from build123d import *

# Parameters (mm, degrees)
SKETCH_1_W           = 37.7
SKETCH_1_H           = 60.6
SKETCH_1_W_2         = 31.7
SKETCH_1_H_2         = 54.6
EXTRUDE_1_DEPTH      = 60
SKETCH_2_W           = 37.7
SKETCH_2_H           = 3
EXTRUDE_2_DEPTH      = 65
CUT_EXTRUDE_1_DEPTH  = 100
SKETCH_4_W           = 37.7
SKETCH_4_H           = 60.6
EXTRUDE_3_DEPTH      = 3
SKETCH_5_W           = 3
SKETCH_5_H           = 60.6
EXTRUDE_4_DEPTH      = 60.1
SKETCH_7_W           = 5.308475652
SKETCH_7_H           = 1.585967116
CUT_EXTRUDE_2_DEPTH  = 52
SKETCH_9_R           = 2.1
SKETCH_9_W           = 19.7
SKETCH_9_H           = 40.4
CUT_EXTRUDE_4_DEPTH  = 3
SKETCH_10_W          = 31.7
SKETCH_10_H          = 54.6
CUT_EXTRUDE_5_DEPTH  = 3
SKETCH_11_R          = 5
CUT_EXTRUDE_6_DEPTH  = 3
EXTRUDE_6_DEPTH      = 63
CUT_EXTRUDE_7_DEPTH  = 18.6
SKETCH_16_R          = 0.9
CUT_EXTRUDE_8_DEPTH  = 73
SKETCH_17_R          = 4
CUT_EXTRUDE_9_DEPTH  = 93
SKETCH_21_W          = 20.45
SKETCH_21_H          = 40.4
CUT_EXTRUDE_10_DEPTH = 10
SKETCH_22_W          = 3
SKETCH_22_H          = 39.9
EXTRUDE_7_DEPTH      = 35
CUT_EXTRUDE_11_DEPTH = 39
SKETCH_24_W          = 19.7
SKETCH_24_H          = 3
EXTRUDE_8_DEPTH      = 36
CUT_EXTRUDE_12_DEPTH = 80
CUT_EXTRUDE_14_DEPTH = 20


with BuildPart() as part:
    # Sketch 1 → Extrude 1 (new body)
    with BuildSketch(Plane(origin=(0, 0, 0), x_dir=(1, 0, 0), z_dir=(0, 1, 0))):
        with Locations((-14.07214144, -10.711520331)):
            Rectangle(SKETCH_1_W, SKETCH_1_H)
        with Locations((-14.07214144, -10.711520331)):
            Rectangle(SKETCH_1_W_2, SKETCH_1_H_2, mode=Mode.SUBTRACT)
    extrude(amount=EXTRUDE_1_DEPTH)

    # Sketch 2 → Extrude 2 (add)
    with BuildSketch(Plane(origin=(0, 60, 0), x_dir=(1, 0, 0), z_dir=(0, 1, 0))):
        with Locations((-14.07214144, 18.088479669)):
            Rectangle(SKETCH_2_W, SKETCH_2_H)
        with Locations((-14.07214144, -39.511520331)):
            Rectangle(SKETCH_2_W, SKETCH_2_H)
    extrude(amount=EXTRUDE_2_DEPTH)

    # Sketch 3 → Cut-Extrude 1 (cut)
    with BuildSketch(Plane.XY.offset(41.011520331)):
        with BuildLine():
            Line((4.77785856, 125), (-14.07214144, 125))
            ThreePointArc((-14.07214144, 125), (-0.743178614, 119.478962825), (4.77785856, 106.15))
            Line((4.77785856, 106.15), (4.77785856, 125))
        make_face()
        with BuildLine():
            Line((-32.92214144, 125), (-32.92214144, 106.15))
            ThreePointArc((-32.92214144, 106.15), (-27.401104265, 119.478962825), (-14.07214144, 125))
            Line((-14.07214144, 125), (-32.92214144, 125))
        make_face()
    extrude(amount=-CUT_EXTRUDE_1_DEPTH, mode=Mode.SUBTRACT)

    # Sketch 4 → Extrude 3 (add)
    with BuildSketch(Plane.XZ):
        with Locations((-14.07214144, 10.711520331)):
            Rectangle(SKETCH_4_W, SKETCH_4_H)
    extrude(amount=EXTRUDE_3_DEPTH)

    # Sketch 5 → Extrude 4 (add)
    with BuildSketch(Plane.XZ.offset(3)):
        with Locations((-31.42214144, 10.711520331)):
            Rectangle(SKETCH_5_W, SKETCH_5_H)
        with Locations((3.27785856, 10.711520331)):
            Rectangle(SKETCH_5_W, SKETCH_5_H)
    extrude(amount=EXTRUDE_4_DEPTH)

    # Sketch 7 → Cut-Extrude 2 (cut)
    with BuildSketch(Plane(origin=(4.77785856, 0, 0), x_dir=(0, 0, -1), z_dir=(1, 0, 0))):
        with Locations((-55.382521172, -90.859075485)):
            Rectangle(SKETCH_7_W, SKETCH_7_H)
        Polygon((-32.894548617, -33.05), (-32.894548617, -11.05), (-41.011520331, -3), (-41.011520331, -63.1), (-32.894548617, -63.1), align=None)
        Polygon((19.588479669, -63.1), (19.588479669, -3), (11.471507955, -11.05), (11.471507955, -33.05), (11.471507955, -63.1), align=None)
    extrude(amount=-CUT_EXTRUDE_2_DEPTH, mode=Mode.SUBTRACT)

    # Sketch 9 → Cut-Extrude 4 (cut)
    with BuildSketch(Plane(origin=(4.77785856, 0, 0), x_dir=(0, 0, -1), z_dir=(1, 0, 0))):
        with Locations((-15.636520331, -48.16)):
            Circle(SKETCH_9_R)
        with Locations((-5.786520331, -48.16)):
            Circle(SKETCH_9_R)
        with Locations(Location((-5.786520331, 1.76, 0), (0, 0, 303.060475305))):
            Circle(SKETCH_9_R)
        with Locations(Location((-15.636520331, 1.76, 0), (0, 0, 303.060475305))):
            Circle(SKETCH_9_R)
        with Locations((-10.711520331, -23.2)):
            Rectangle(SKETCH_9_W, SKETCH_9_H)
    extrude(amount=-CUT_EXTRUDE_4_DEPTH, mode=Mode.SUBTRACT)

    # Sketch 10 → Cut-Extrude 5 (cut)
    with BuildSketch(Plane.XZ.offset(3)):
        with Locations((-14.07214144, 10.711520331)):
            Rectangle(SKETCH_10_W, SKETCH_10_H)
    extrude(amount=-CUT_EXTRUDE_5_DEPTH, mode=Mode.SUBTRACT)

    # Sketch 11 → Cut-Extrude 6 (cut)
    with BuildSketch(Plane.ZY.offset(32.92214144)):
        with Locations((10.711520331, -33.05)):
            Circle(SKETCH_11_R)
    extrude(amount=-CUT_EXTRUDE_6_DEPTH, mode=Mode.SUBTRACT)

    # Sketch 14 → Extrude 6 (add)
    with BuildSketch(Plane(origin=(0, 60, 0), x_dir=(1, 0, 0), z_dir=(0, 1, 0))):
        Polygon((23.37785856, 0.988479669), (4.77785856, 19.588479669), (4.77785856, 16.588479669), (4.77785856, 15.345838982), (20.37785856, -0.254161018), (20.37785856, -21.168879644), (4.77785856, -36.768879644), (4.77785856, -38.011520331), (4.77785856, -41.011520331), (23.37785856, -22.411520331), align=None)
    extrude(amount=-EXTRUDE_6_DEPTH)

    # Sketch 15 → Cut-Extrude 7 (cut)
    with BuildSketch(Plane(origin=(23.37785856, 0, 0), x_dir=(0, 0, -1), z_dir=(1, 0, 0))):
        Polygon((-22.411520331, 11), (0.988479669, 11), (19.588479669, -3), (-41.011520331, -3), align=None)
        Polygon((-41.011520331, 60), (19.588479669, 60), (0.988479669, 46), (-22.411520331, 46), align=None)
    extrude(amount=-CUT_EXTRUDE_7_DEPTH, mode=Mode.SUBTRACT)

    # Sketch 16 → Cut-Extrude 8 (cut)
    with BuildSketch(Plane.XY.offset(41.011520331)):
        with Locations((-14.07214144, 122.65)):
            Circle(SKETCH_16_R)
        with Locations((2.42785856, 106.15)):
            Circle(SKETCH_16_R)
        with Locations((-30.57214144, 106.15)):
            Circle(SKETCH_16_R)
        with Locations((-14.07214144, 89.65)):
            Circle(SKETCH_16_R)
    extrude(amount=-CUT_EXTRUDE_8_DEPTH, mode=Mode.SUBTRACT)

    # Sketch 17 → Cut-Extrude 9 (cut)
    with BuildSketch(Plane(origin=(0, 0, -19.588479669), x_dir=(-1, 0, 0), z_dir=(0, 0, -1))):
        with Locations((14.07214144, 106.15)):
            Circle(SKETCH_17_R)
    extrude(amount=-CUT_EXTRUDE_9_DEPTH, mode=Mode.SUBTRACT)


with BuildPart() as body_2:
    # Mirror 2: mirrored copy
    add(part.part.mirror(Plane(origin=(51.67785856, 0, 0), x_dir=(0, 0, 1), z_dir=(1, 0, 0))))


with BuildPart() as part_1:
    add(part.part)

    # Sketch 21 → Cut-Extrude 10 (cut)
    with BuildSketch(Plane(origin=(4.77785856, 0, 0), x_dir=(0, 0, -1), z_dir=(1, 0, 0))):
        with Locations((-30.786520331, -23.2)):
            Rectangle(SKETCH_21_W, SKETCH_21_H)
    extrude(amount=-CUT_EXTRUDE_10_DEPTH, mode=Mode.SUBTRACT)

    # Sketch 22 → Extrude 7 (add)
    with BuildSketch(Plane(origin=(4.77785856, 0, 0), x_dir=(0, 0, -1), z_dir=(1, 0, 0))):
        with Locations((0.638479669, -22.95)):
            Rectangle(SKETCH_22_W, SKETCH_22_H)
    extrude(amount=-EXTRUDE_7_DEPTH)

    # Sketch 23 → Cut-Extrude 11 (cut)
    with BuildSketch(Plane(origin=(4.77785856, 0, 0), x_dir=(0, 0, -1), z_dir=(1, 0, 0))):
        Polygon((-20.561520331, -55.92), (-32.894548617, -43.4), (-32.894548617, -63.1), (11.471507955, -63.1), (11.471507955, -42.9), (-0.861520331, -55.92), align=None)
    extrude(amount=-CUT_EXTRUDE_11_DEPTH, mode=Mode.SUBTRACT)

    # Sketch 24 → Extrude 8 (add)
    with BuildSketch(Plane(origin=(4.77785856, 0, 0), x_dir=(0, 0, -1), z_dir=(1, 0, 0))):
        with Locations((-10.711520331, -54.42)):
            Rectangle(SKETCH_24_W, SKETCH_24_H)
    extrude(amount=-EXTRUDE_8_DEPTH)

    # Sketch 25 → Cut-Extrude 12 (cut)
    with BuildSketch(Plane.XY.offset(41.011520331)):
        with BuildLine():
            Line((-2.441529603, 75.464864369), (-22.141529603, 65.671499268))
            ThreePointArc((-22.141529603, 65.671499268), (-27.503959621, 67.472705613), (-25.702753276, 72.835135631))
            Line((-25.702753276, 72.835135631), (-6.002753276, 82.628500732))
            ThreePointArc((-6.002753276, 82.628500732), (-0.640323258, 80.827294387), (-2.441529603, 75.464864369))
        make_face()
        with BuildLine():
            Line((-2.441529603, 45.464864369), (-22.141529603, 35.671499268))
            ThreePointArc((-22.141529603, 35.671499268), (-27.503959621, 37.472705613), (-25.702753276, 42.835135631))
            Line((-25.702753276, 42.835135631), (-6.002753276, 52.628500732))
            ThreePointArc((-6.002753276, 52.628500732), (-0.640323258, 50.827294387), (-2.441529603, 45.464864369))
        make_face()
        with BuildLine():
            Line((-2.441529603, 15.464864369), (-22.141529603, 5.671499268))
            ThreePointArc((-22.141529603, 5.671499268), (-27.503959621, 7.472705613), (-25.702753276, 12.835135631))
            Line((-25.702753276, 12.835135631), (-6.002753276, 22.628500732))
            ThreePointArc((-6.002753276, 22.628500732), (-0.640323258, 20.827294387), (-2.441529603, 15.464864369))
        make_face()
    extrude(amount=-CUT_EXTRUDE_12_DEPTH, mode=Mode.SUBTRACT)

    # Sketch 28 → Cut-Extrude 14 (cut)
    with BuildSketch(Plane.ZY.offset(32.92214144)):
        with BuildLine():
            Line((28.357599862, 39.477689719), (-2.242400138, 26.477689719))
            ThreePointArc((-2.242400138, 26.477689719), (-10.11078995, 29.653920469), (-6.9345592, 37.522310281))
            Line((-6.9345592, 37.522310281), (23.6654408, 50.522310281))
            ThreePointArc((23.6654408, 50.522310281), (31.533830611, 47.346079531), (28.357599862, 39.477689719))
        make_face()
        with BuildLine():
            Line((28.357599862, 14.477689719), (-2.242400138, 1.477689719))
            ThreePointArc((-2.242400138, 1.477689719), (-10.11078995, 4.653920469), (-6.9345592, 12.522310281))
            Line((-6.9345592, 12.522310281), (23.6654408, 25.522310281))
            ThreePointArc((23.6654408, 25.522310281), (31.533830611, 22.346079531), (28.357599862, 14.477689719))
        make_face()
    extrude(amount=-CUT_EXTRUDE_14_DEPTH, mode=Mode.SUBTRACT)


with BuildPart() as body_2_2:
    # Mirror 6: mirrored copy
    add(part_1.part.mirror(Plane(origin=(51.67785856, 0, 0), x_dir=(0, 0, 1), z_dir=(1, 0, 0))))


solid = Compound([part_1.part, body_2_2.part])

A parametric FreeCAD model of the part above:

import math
import FreeCAD as App
import Part
import Sketcher
from FreeCAD import Vector


def add_polygon(sketch, points):
    """Adds a closed chain of lines whose ends are joined by coincident constraints."""
    first, n = sketch.GeometryCount, len(points)
    for a, b in zip(points, points[1:] + points[:1]):
        sketch.addGeometry(Part.LineSegment(App.Vector(*a, 0), App.Vector(*b, 0)), False)
    for i in range(n):
        sketch.addConstraint(Sketcher.Constraint("Coincident", first + i, 2, first + (i + 1) % n, 1))

doc = App.newDocument("Part")
body = doc.addObject("PartDesign::Body", "Body")

# Sketch on XZ plane
sketch1 = doc.addObject("Sketcher::SketchObject", "Sketch")
body.addObject(sketch1)
sketch1.AttachmentSupport = (doc.XZ_Plane, [""])
sketch1.MapMode = "FlatFace"
add_polygon(sketch1, [(-33, -20), (-33, 41), (5, 41), (5, -20)])  # lines 0-3
add_polygon(sketch1, [(2, 38), (-30, 38), (-30, -17), (2, -17)])  # lines 4-7
sketch1.addConstraint(Sketcher.Constraint("Vertical", 0))
sketch1.addConstraint(Sketcher.Constraint("Horizontal", 1))
sketch1.addConstraint(Sketcher.Constraint("Vertical", 2))
sketch1.addConstraint(Sketcher.Constraint("Horizontal", 3))
sketch1.addConstraint(Sketcher.Constraint("Horizontal", 4))
sketch1.addConstraint(Sketcher.Constraint("Vertical", 5))
sketch1.addConstraint(Sketcher.Constraint("Horizontal", 6))
sketch1.addConstraint(Sketcher.Constraint("Vertical", 7))
sketch1.addConstraint(Sketcher.Constraint("DistanceX", 1, 1, 1, 2, 37.7))
sketch1.addConstraint(Sketcher.Constraint("DistanceX", 4, 2, 4, 1, 31.7))
sketch1.addConstraint(Sketcher.Constraint("DistanceY", 0, 1, 0, 2, 60.6))
sketch1.addConstraint(Sketcher.Constraint("DistanceY", 5, 2, 5, 1, 54.6))
sketch1.addConstraint(Sketcher.Constraint("DistanceX", 0, 2, 4, 2, 3.0))
sketch1.addConstraint(Sketcher.Constraint("DistanceY", 4, 2, 0, 2, 3.0))
sketch1.addConstraint(Sketcher.Constraint("DistanceX", 0, 2, -1, 1, 32.922141))
sketch1.addConstraint(Sketcher.Constraint("DistanceY", -1, 1, 0, 2, 41.01152))
pad1 = doc.addObject("PartDesign::Pad", "Pad")
body.addObject(pad1)
pad1.Profile = sketch1
pad1.Length = 60
pad1.Reversed = True

# Sketch on XZ plane
sketch2 = doc.addObject("Sketcher::SketchObject", "Sketch001")
body.addObject(sketch2)
sketch2.AttachmentSupport = (doc.XZ_Plane, [""])
sketch2.MapMode = "FlatFace"
sketch2.AttachmentOffset = App.Placement(Vector(0, 0, -60), App.Rotation())
add_polygon(sketch2, [(-32.9, -19.6), (-32.9, -16.6), (4.8, -16.6), (4.8, -19.6)])  # lines 0-3
add_polygon(sketch2, [(-32.9, 38), (-32.9, 41), (4.8, 41), (4.8, 38)])  # lines 4-7
sketch2.addConstraint(Sketcher.Constraint("Vertical", 0))
sketch2.addConstraint(Sketcher.Constraint("Horizontal", 1))
sketch2.addConstraint(Sketcher.Constraint("Vertical", 2))
sketch2.addConstraint(Sketcher.Constraint("Horizontal", 3))
sketch2.addConstraint(Sketcher.Constraint("Vertical", 4))
sketch2.addConstraint(Sketcher.Constraint("Horizontal", 5))
sketch2.addConstraint(Sketcher.Constraint("Vertical", 6))
sketch2.addConstraint(Sketcher.Constraint("Horizontal", 7))
sketch2.addConstraint(Sketcher.Constraint("Vertical", 3, 2, 4, 2))
sketch2.addConstraint(Sketcher.Constraint("Vertical", 2, 2, 5, 2))
sketch2.addConstraint(Sketcher.Constraint("Equal", 2, 4))
sketch2.addConstraint(Sketcher.Constraint("DistanceY", 0, 1, 0, 2, 3.0))
sketch2.addConstraint(Sketcher.Constraint("DistanceX", 1, 1, 1, 2, 37.7))
sketch2.addConstraint(Sketcher.Constraint("DistanceY", 0, 2, 4, 2, 57.6))
sketch2.addConstraint(Sketcher.Constraint("DistanceX", 0, 2, -1, 1, 32.922141))
sketch2.addConstraint(Sketcher.Constraint("DistanceY", 0, 2, -1, 1, 16.58848))
pad2 = doc.addObject("PartDesign::Pad", "Pad001")
body.addObject(pad2)
pad2.Profile = sketch2
pad2.Length = 65
pad2.Reversed = True

# Sketch on XY plane
sketch3 = doc.addObject("Sketcher::SketchObject", "Sketch002")
body.addObject(sketch3)
sketch3.AttachmentSupport = (doc.XY_Plane, [""])
sketch3.MapMode = "FlatFace"
sketch3.AttachmentOffset = App.Placement(Vector(0, 0, 41.01152), App.Rotation())
sketch3.addGeometry(Part.LineSegment(Vector(5, 125, 0), Vector(-14, 125, 0)), False)
sketch3.addGeometry(Part.ArcOfCircle(Part.Circle(Vector(-14, 106, 0), Vector(0, 0, 1), 19), math.radians(0), math.radians(90)), False)
sketch3.addGeometry(Part.LineSegment(Vector(5, 106, 0), Vector(5, 125, 0)), False)
sketch3.addGeometry(Part.LineSegment(Vector(-33, 125, 0), Vector(-33, 106, 0)), False)
sketch3.addGeometry(Part.ArcOfCircle(Part.Circle(Vector(-14, 106, 0), Vector(0, 0, 1), 19), math.radians(90), math.radians(180)), False)
sketch3.addGeometry(Part.LineSegment(Vector(-14, 125, 0), Vector(-33, 125, 0)), False)
sketch3.addConstraint(Sketcher.Constraint("Tangent", 0, 2, 1, 2))
sketch3.addConstraint(Sketcher.Constraint("Tangent", 1, 1, 2, 1))
sketch3.addConstraint(Sketcher.Constraint("Coincident", 2, 2, 0, 1))
sketch3.addConstraint(Sketcher.Constraint("Tangent", 3, 2, 4, 2))
sketch3.addConstraint(Sketcher.Constraint("Tangent", 4, 1, 5, 1))
sketch3.addConstraint(Sketcher.Constraint("Coincident", 5, 2, 3, 1))
sketch3.addConstraint(Sketcher.Constraint("Horizontal", 0))
sketch3.addConstraint(Sketcher.Constraint("Vertical", 2))
sketch3.addConstraint(Sketcher.Constraint("Vertical", 3))
sketch3.addConstraint(Sketcher.Constraint("Horizontal", 5))
sketch3.addConstraint(Sketcher.Constraint("Coincident", 4, 3, 1, 3))
sketch3.addConstraint(Sketcher.Constraint("Equal", 1, 4))
sketch3.addConstraint(Sketcher.Constraint("Radius", 1, 18.85))
sketch3.addConstraint(Sketcher.Constraint("DistanceY", -1, 1, 0, 2, 125.0))
sketch3.addConstraint(Sketcher.Constraint("DistanceX", 1, 3, -1, 1, 14.072141))
pocket1 = doc.addObject("PartDesign::Pocket", "Pocket")
body.addObject(pocket1)
pocket1.Profile = sketch3
pocket1.Length = 100

# Sketch on XZ plane
sketch4 = doc.addObject("Sketcher::SketchObject", "Sketch003")
body.addObject(sketch4)
sketch4.AttachmentSupport = (doc.XZ_Plane, [""])
sketch4.MapMode = "FlatFace"
add_polygon(sketch4, [(-33, 41), (-33, -20), (5, -20), (5, 41)])  # lines 0-3
sketch4.addConstraint(Sketcher.Constraint("Vertical", 0))
sketch4.addConstraint(Sketcher.Constraint("Horizontal", 1))
sketch4.addConstraint(Sketcher.Constraint("Vertical", 2))
sketch4.addConstraint(Sketcher.Constraint("Horizontal", 3))
sketch4.addConstraint(Sketcher.Constraint("DistanceX", 1, 1, 1, 2, 37.7))
sketch4.addConstraint(Sketcher.Constraint("DistanceY", 0, 2, 0, 1, 60.6))
sketch4.addConstraint(Sketcher.Constraint("DistanceX", 0, 2, -1, 1, 32.922141))
sketch4.addConstraint(Sketcher.Constraint("DistanceY", 0, 2, -1, 1, 19.58848))
pad3 = doc.addObject("PartDesign::Pad", "Pad002")
body.addObject(pad3)
pad3.Profile = sketch4
pad3.Length = 3

# Sketch on XZ plane
sketch5 = doc.addObject("Sketcher::SketchObject", "Sketch004")
body.addObject(sketch5)
sketch5.AttachmentSupport = (doc.XZ_Plane, [""])
sketch5.MapMode = "FlatFace"
sketch5.AttachmentOffset = App.Placement(Vector(0, 0, 3), App.Rotation())
add_polygon(sketch5, [(-32.9, 41), (-32.9, -19.6), (-29.9, -19.6), (-29.9, 41)])  # lines 0-3
add_polygon(sketch5, [(1.8, 41), (1.8, -19.6), (4.8, -19.6), (4.8, 41)])  # lines 4-7
sketch5.addConstraint(Sketcher.Constraint("Vertical", 0))
sketch5.addConstraint(Sketcher.Constraint("Horizontal", 1))
sketch5.addConstraint(Sketcher.Constraint("Vertical", 2))
sketch5.addConstraint(Sketcher.Constraint("Horizontal", 3))
sketch5.addConstraint(Sketcher.Constraint("Vertical", 4))
sketch5.addConstraint(Sketcher.Constraint("Horizontal", 5))
sketch5.addConstraint(Sketcher.Constraint("Vertical", 6))
sketch5.addConstraint(Sketcher.Constraint("Horizontal", 7))
sketch5.addConstraint(Sketcher.Constraint("Horizontal", 1, 2, 4, 2))
sketch5.addConstraint(Sketcher.Constraint("Horizontal", 3, 2, 6, 2))
sketch5.addConstraint(Sketcher.Constraint("Equal", 3, 5))
sketch5.addConstraint(Sketcher.Constraint("DistanceX", 1, 1, 1, 2, 3.0))
sketch5.addConstraint(Sketcher.Constraint("DistanceY", 0, 2, 0, 1, 60.6))
sketch5.addConstraint(Sketcher.Constraint("DistanceX", 1, 2, 4, 2, 31.7))
sketch5.addConstraint(Sketcher.Constraint("DistanceX", 0, 2, -1, 1, 32.922141))
sketch5.addConstraint(Sketcher.Constraint("DistanceY", 0, 2, -1, 1, 19.58848))
pad4 = doc.addObject("PartDesign::Pad", "Pad003")
body.addObject(pad4)
pad4.Profile = sketch5
pad4.Length = 60.1

# Sketch on YZ plane
sketch6 = doc.addObject("Sketcher::SketchObject", "Sketch005")
body.addObject(sketch6)
sketch6.AttachmentSupport = (doc.YZ_Plane, [""])
sketch6.MapMode = "FlatFace"
sketch6.AttachmentOffset = App.Placement(Vector(0, 0, 4.777859), App.Rotation())
add_polygon(sketch6, [(-90.1, 58), (-91.7, 58), (-91.7, 52.7), (-90.1, 52.7)])  # lines 0-3
add_polygon(sketch6, [(-11.1, 32.9), (-3, 41), (-63.1, 41), (-63.1, 32.9)])  # lines 4-7
add_polygon(sketch6, [(-63.1, -19.6), (-3, -19.6), (-11.1, -11.5), (-63.1, -11.5)])  # lines 8-11
sketch6.addConstraint(Sketcher.Constraint("Horizontal", 0))
sketch6.addConstraint(Sketcher.Constraint("Vertical", 1))
sketch6.addConstraint(Sketcher.Constraint("Horizontal", 2))
sketch6.addConstraint(Sketcher.Constraint("Vertical", 3))
sketch6.addConstraint(Sketcher.Constraint("Horizontal", 5))
sketch6.addConstraint(Sketcher.Constraint("Vertical", 6))
sketch6.addConstraint(Sketcher.Constraint("Horizontal", 7))
sketch6.addConstraint(Sketcher.Constraint("Horizontal", 8))
sketch6.addConstraint(Sketcher.Constraint("Horizontal", 10))
sketch6.addConstraint(Sketcher.Constraint("Vertical", 11))
sketch6.addConstraint(Sketcher.Constraint("Vertical", 4, 2, 8, 2))
sketch6.addConstraint(Sketcher.Constraint("Vertical", 7, 2, 9, 2))
sketch6.addConstraint(Sketcher.Constraint("Vertical", 6, 2, 10, 2))
sketch6.addConstraint(Sketcher.Constraint("Equal", 6, 11))
sketch6.addConstraint(Sketcher.Constraint("DistanceX", 5, 2, 5, 1, 60.1))
sketch6.addConstraint(Sketcher.Constraint("DistanceX", 4, 2, -1, 1, 3.0))
sketch6.addConstraint(Sketcher.Constraint("DistanceX", 7, 1, 7, 2, 52.05))
sketch6.addConstraint(Sketcher.Constraint("DistanceY", 8, 2, 4, 2, 60.6))
sketch6.addConstraint(Sketcher.Constraint("DistanceY", 6, 2, 6, 1, 8.116972))
sketch6.addConstraint(Sketcher.Constraint("DistanceX", 0, 2, 0, 1, 1.585967))
sketch6.addConstraint(Sketcher.Constraint("DistanceY", 1, 2, 1, 1, 5.308476))
sketch6.addConstraint(Sketcher.Constraint("DistanceX", 0, 2, -1, 1, 91.652059))
sketch6.addConstraint(Sketcher.Constraint("DistanceY", -1, 1, 0, 2, 58.036759))
sketch6.addConstraint(Sketcher.Constraint("DistanceY", -1, 1, 4, 2, 41.01152))
pocket2 = doc.addObject("PartDesign::Pocket", "Pocket001")
body.addObject(pocket2)
pocket2.Profile = sketch6
pocket2.Length = 52

# Sketch on YZ plane
sketch7 = doc.addObject("Sketcher::SketchObject", "Sketch006")
body.addObject(sketch7)
sketch7.AttachmentSupport = (doc.YZ_Plane, [""])
sketch7.MapMode = "FlatFace"
sketch7.AttachmentOffset = App.Placement(Vector(0, 0, 4.777859), App.Rotation())
sketch7.addGeometry(Part.Circle(Vector(-48.2, 15.6, 0), Vector(0, 0, 1), 2.1), False)  # 0
sketch7.addGeometry(Part.Circle(Vector(-48.2, 5.8, 0), Vector(0, 0, 1), 2.1), False)  # 1
sketch7.addGeometry(Part.Circle(Vector(1.8, 5.8, 0), Vector(0, 0, 1), 2.1), False)  # 2
sketch7.addGeometry(Part.Circle(Vector(1.8, 15.6, 0), Vector(0, 0, 1), 2.1), False)  # 3
add_polygon(sketch7, [(-3, 20.6), (-43.4, 20.6), (-43.4, 0.9), (-3, 0.9)])  # lines 4-7
sketch7.addConstraint(Sketcher.Constraint("Horizontal", 4))
sketch7.addConstraint(Sketcher.Constraint("Vertical", 5))
sketch7.addConstraint(Sketcher.Constraint("Horizontal", 6))
sketch7.addConstraint(Sketcher.Constraint("Vertical", 7))
sketch7.addConstraint(Sketcher.Constraint("Equal", 0, 1))
sketch7.addConstraint(Sketcher.Constraint("Equal", 1, 2))
sketch7.addConstraint(Sketcher.Constraint("Equal", 2, 3))
sketch7.addConstraint(Sketcher.Constraint("Horizontal", 1, 3, 2, 3))
sketch7.addConstraint(Sketcher.Constraint("Horizontal", 0, 3, 3, 3))
sketch7.addConstraint(Sketcher.Constraint("Vertical", 0, 3, 1, 3))
sketch7.addConstraint(Sketcher.Constraint("Vertical", 2, 3, 3, 3))
sketch7.addConstraint(Sketcher.Constraint("Diameter", 0, 4.2))
sketch7.addConstraint(Sketcher.Constraint("DistanceX", 4, 2, 4, 1, 40.4))
sketch7.addConstraint(Sketcher.Constraint("DistanceY", 5, 2, 5, 1, 19.7))
sketch7.addConstraint(Sketcher.Constraint("DistanceX", 6, 2, -1, 1, 3.0))
sketch7.addConstraint(Sketcher.Constraint("DistanceX", 0, 3, -1, 1, 48.16))
sketch7.addConstraint(Sketcher.Constraint("DistanceX", -1, 1, 2, 3, 1.76))
sketch7.addConstraint(Sketcher.Constraint("DistanceY", 1, 3, 0, 3, 9.85))
sketch7.addConstraint(Sketcher.Constraint("DistanceY", 0, 3, 4, 2, 4.925))
sketch7.addConstraint(Sketcher.Constraint("DistanceY", -1, 1, 0, 3, 15.63652))
pocket3 = doc.addObject("PartDesign::Pocket", "Pocket002")
body.addObject(pocket3)
pocket3.Profile = sketch7
pocket3.Length = 3

# Sketch on XZ plane
sketch8 = doc.addObject("Sketcher::SketchObject", "Sketch007")
body.addObject(sketch8)
sketch8.AttachmentSupport = (doc.XZ_Plane, [""])
sketch8.MapMode = "FlatFace"
sketch8.AttachmentOffset = App.Placement(Vector(0, 0, 3), App.Rotation())
add_polygon(sketch8, [(-30, 38), (-30, -17), (2, -17), (2, 38)])  # lines 0-3
sketch8.addConstraint(Sketcher.Constraint("Vertical", 0))
sketch8.addConstraint(Sketcher.Constraint("Horizontal", 1))
sketch8.addConstraint(Sketcher.Constraint("Vertical", 2))
sketch8.addConstraint(Sketcher.Constraint("Horizontal", 3))
sketch8.addConstraint(Sketcher.Constraint("DistanceX", 1, 1, 1, 2, 31.7))
sketch8.addConstraint(Sketcher.Constraint("DistanceY", 0, 2, 0, 1, 54.6))
sketch8.addConstraint(Sketcher.Constraint("DistanceX", 0, 2, -1, 1, 29.922141))
sketch8.addConstraint(Sketcher.Constraint("DistanceY", 0, 2, -1, 1, 16.58848))
pocket4 = doc.addObject("PartDesign::Pocket", "Pocket003")
body.addObject(pocket4)
pocket4.Profile = sketch8
pocket4.Length = 3

# Sketch on YZ plane
sketch9 = doc.addObject("Sketcher::SketchObject", "Sketch008")
body.addObject(sketch9)
sketch9.AttachmentSupport = (doc.YZ_Plane, [""])
sketch9.MapMode = "FlatFace"
sketch9.AttachmentOffset = App.Placement(Vector(0, 0, -32.922141), App.Rotation())
sketch9.addGeometry(Part.Circle(Vector(-33, 11, 0), Vector(0, 0, 1), 5), False)
sketch9.addConstraint(Sketcher.Constraint("Diameter", 0, 10.0))
sketch9.addConstraint(Sketcher.Constraint("DistanceX", 0, 3, -1, 1, 33.05))
sketch9.addConstraint(Sketcher.Constraint("DistanceY", -1, 1, 0, 3, 10.71152))
pocket5 = doc.addObject("PartDesign::Pocket", "Pocket004")
body.addObject(pocket5)
pocket5.Profile = sketch9
pocket5.Length = 3
pocket5.Reversed = True

# Sketch on XZ plane
sketch10 = doc.addObject("Sketcher::SketchObject", "Sketch009")
body.addObject(sketch10)
sketch10.AttachmentSupport = (doc.XZ_Plane, [""])
sketch10.MapMode = "FlatFace"
sketch10.AttachmentOffset = App.Placement(Vector(0, 0, -60), App.Rotation())
add_polygon(sketch10, [(23.4, -1), (4.8, -19.6), (4.8, -15.3), (20.4, 0.3), (20.4, 21.2), (4.8, 36.8), (4.8, 41), (23.4, 22.4)])  # lines 0-7
sketch10.addConstraint(Sketcher.Constraint("Vertical", 1))
sketch10.addConstraint(Sketcher.Constraint("Vertical", 3))
sketch10.addConstraint(Sketcher.Constraint("Vertical", 5))
sketch10.addConstraint(Sketcher.Constraint("Vertical", 7))
sketch10.addConstraint(Sketcher.Constraint("Parallel", 0, 2))
sketch10.addConstraint(Sketcher.Constraint("Perpendicular", 2, 4))
sketch10.addConstraint(Sketcher.Constraint("Parallel", 4, 6))
sketch10.addConstraint(Sketcher.Constraint("Vertical", 1, 2, 4, 2))
sketch10.addConstraint(Sketcher.Constraint("Equal", 1, 5))
sketch10.addConstraint(Sketcher.Constraint("Equal", 2, 4))
sketch10.addConstraint(Sketcher.Constraint("DistanceY", 7, 2, 7, 1, 23.4))
sketch10.addConstraint(Sketcher.Constraint("DistanceX", 3, 2, 6, 2, 3.0))
sketch10.addConstraint(Sketcher.Constraint("DistanceX", 1, 2, 2, 2, 15.6))
sketch10.addConstraint(Sketcher.Constraint("DistanceY", 1, 1, 1, 2, 4.242641))
sketch10.addConstraint(Sketcher.Constraint("DistanceX", -1, 1, 0, 2, 4.777859))
sketch10.addConstraint(Sketcher.Constraint("DistanceY", 0, 2, -1, 1, 19.58848))
pad5 = doc.addObject("PartDesign::Pad", "Pad004")
body.addObject(pad5)
pad5.Profile = sketch10
pad5.Length = 63

# Sketch on YZ plane
sketch11 = doc.addObject("Sketcher::SketchObject", "Sketch010")
body.addObject(sketch11)
sketch11.AttachmentSupport = (doc.YZ_Plane, [""])
sketch11.MapMode = "FlatFace"
sketch11.AttachmentOffset = App.Placement(Vector(0, 0, 23.377859), App.Rotation())
add_polygon(sketch11, [(11, -1), (11, 22), (-3, 41), (-3, -20)])  # lines 0-3
add_polygon(sketch11, [(60, -20), (60, 41), (46, 22), (46, -1)])  # lines 4-7
sketch11.addConstraint(Sketcher.Constraint("Vertical", 0))
sketch11.addConstraint(Sketcher.Constraint("Vertical", 2))
sketch11.addConstraint(Sketcher.Constraint("Vertical", 4))
sketch11.addConstraint(Sketcher.Constraint("Vertical", 6))
sketch11.addConstraint(Sketcher.Constraint("Parallel", 3, 5))
sketch11.addConstraint(Sketcher.Constraint("Parallel", 1, 7))
sketch11.addConstraint(Sketcher.Constraint("Horizontal", 1, 2, 4, 2))
sketch11.addConstraint(Sketcher.Constraint("Horizontal", 0, 2, 5, 2))
sketch11.addConstraint(Sketcher.Constraint("Horizontal", 3, 2, 6, 2))
sketch11.addConstraint(Sketcher.Constraint("Horizontal", 2, 2, 7, 2))
sketch11.addConstraint(Sketcher.Constraint("DistanceY", 0, 1, 0, 2, 23.4))
sketch11.addConstraint(Sketcher.Constraint("DistanceY", 2, 2, 2, 1, 60.6))
sketch11.addConstraint(Sketcher.Constraint("DistanceX", -1, 1, 0, 2, 11.0))
sketch11.addConstraint(Sketcher.Constraint("DistanceX", 1, 2, -1, 1, 3.0))
sketch11.addConstraint(Sketcher.Constraint("DistanceX", -1, 1, 4, 2, 60.0))
sketch11.addConstraint(Sketcher.Constraint("DistanceY", -1, 1, 0, 2, 22.41152))
pocket6 = doc.addObject("PartDesign::Pocket", "Pocket005")
body.addObject(pocket6)
pocket6.Profile = sketch11
pocket6.Length = 18.6

# Sketch on XY plane
sketch12 = doc.addObject("Sketcher::SketchObject", "Sketch011")
body.addObject(sketch12)
sketch12.AttachmentSupport = (doc.XY_Plane, [""])
sketch12.MapMode = "FlatFace"
sketch12.AttachmentOffset = App.Placement(Vector(0, 0, 41.01152), App.Rotation())
sketch12.addGeometry(Part.Circle(Vector(-14.1, 122.7, 0), Vector(0, 0, 1), 0.9), False)
sketch12.addGeometry(Part.Circle(Vector(2.4, 106.2, 0), Vector(0, 0, 1), 0.9), False)
sketch12.addGeometry(Part.Circle(Vector(-30.6, 106.2, 0), Vector(0, 0, 1), 0.9), False)
sketch12.addGeometry(Part.Circle(Vector(-14.1, 89.7, 0), Vector(0, 0, 1), 0.9), False)
sketch12.addConstraint(Sketcher.Constraint("Equal", 0, 1))
sketch12.addConstraint(Sketcher.Constraint("Equal", 1, 2))
sketch12.addConstraint(Sketcher.Constraint("Equal", 2, 3))
sketch12.addConstraint(Sketcher.Constraint("Horizontal", 1, 3, 2, 3))
sketch12.addConstraint(Sketcher.Constraint("Vertical", 0, 3, 3, 3))
sketch12.addConstraint(Sketcher.Constraint("Diameter", 0, 1.8))
sketch12.addConstraint(Sketcher.Constraint("DistanceX", 2, 3, 1, 3, 33.0))
sketch12.addConstraint(Sketcher.Constraint("DistanceY", 3, 3, 0, 3, 33.0))
sketch12.addConstraint(Sketcher.Constraint("DistanceX", 0, 3, 1, 3, 16.5))
sketch12.addConstraint(Sketcher.Constraint("DistanceY", 1, 3, 0, 3, 16.5))
sketch12.addConstraint(Sketcher.Constraint("DistanceY", -1, 1, 0, 3, 122.65))
sketch12.addConstraint(Sketcher.Constraint("DistanceX", 0, 3, -1, 1, 14.072141))
pocket7 = doc.addObject("PartDesign::Pocket", "Pocket006")
body.addObject(pocket7)
pocket7.Profile = sketch12
pocket7.Length = 73

# Sketch on XY plane
sketch13 = doc.addObject("Sketcher::SketchObject", "Sketch012")
body.addObject(sketch13)
sketch13.AttachmentSupport = (doc.XY_Plane, [""])
sketch13.MapMode = "FlatFace"
sketch13.AttachmentOffset = App.Placement(Vector(0, 0, -19.58848), App.Rotation())
sketch13.addGeometry(Part.Circle(Vector(-14.1, 106.2, 0), Vector(0, 0, 1), 4), False)
sketch13.addConstraint(Sketcher.Constraint("Diameter", 0, 8.0))
sketch13.addConstraint(Sketcher.Constraint("DistanceY", -1, 1, 0, 3, 106.15))
sketch13.addConstraint(Sketcher.Constraint("DistanceX", 0, 3, -1, 1, 14.072141))
pocket8 = doc.addObject("PartDesign::Pocket", "Pocket007")
body.addObject(pocket8)
pocket8.Profile = sketch13
pocket8.Length = 93
pocket8.Reversed = True
body2 = doc.addObject("PartDesign::Body", "Body001")
doc.recompute()

mirroring = doc.addObject("Part::Mirroring", "Mirroring")
mirroring.Source = body
mirroring.Base = Vector(51.677859, 0, 0)
mirroring.Normal = Vector(1, 0, 0)
body2.BaseFeature = mirroring
doc.recompute()

# Sketch on YZ plane
sketch14 = doc.addObject("Sketcher::SketchObject", "Sketch013")
body.addObject(sketch14)
sketch14.AttachmentSupport = (doc.YZ_Plane, [""])
sketch14.MapMode = "FlatFace"
sketch14.AttachmentOffset = App.Placement(Vector(0, 0, 4.777859), App.Rotation())
add_polygon(sketch14, [(-3, 41), (-43, 41), (-43, 21), (-3, 21)])  # lines 0-3
sketch14.addConstraint(Sketcher.Constraint("Horizontal", 0))
sketch14.addConstraint(Sketcher.Constraint("Vertical", 1))
sketch14.addConstraint(Sketcher.Constraint("Horizontal", 2))
sketch14.addConstraint(Sketcher.Constraint("Vertical", 3))
sketch14.addConstraint(Sketcher.Constraint("DistanceX", 0, 2, 0, 1, 40.4))
sketch14.addConstraint(Sketcher.Constraint("DistanceX", 2, 2, -1, 1, 3.0))
sketch14.addConstraint(Sketcher.Constraint("DistanceY", 1, 2, 1, 1, 20.45))
sketch14.addConstraint(Sketcher.Constraint("DistanceY", -1, 1, 0, 2, 41.01152))
pocket9 = doc.addObject("PartDesign::Pocket", "Pocket008")
body.addObject(pocket9)
pocket9.Profile = sketch14
pocket9.Length = 10

# Sketch on YZ plane
sketch15 = doc.addObject("Sketcher::SketchObject", "Sketch014")
body.addObject(sketch15)
sketch15.AttachmentSupport = (doc.YZ_Plane, [""])
sketch15.MapMode = "FlatFace"
sketch15.AttachmentOffset = App.Placement(Vector(0, 0, 4.777859), App.Rotation())
add_polygon(sketch15, [(-3, 0.9), (-42.9, 0.9), (-42.9, -2.1), (-3, -2.1)])  # lines 0-3
sketch15.addConstraint(Sketcher.Constraint("Horizontal", 0))
sketch15.addConstraint(Sketcher.Constraint("Vertical", 1))
sketch15.addConstraint(Sketcher.Constraint("Horizontal", 2))
sketch15.addConstraint(Sketcher.Constraint("Vertical", 3))
sketch15.addConstraint(Sketcher.Constraint("DistanceY", 1, 2, 1, 1, 3.0))
sketch15.addConstraint(Sketcher.Constraint("DistanceX", 0, 2, 0, 1, 39.9))
sketch15.addConstraint(Sketcher.Constraint("DistanceX", 2, 2, -1, 1, 3.0))
sketch15.addConstraint(Sketcher.Constraint("DistanceY", -1, 1, 0, 2, 0.86152))
pad6 = doc.addObject("PartDesign::Pad", "Pad005")
body.addObject(pad6)
pad6.Profile = sketch15
pad6.Length = 35
pad6.Reversed = True

# Sketch on YZ plane
sketch16 = doc.addObject("Sketcher::SketchObject", "Sketch015")
body.addObject(sketch16)
sketch16.AttachmentSupport = (doc.YZ_Plane, [""])
sketch16.MapMode = "FlatFace"
sketch16.AttachmentOffset = App.Placement(Vector(0, 0, 4.777859), App.Rotation())
add_polygon(sketch16, [(-56, 21), (-43, 33), (-63, 33), (-63, -11), (-43, -11), (-56, 1)])  # lines 0-5
sketch16.addConstraint(Sketcher.Constraint("Horizontal", 1))
sketch16.addConstraint(Sketcher.Constraint("Vertical", 2))
sketch16.addConstraint(Sketcher.Constraint("Horizontal", 3))
sketch16.addConstraint(Sketcher.Constraint("Vertical", 5))
sketch16.addConstraint(Sketcher.Constraint("Equal", 1, 5))
sketch16.addConstraint(Sketcher.Constraint("DistanceX", 1, 2, 1, 1, 19.7))
sketch16.addConstraint(Sketcher.Constraint("DistanceX", 3, 1, 3, 2, 20.2))
sketch16.addConstraint(Sketcher.Constraint("DistanceX", 0, 2, -1, 1, 43.4))
sketch16.addConstraint(Sketcher.Constraint("DistanceX", 4, 2, -1, 1, 55.92))
sketch16.addConstraint(Sketcher.Constraint("Distance", 4, 17.933878))
sketch16.addConstraint(Sketcher.Constraint("DistanceY", 2, 2, 2, 1, 44.366057))
sketch16.addConstraint(Sketcher.Constraint("DistanceY", -1, 1, 0, 2, 32.894549))
pocket10 = doc.addObject("PartDesign::Pocket", "Pocket009")
body.addObject(pocket10)
pocket10.Profile = sketch16
pocket10.Length = 39

# Sketch on YZ plane
sketch17 = doc.addObject("Sketcher::SketchObject", "Sketch016")
body.addObject(sketch17)
sketch17.AttachmentSupport = (doc.YZ_Plane, [""])
sketch17.MapMode = "FlatFace"
sketch17.AttachmentOffset = App.Placement(Vector(0, 0, 4.777859), App.Rotation())
add_polygon(sketch17, [(-52.9, 20.6), (-55.9, 20.6), (-55.9, 0.9), (-52.9, 0.9)])  # lines 0-3
sketch17.addConstraint(Sketcher.Constraint("Horizontal", 0))
sketch17.addConstraint(Sketcher.Constraint("Vertical", 1))
sketch17.addConstraint(Sketcher.Constraint("Horizontal", 2))
sketch17.addConstraint(Sketcher.Constraint("Vertical", 3))
sketch17.addConstraint(Sketcher.Constraint("DistanceX", 0, 2, 0, 1, 3.0))
sketch17.addConstraint(Sketcher.Constraint("DistanceY", 1, 2, 1, 1, 19.7))
sketch17.addConstraint(Sketcher.Constraint("DistanceX", 0, 2, -1, 1, 55.92))
sketch17.addConstraint(Sketcher.Constraint("DistanceY", -1, 1, 0, 2, 20.56152))
pad7 = doc.addObject("PartDesign::Pad", "Pad006")
body.addObject(pad7)
pad7.Profile = sketch17
pad7.Length = 36
pad7.Reversed = True

# Sketch on XY plane
sketch18 = doc.addObject("Sketcher::SketchObject", "Sketch017")
body.addObject(sketch18)
sketch18.AttachmentSupport = (doc.XY_Plane, [""])
sketch18.MapMode = "FlatFace"
sketch18.AttachmentOffset = App.Placement(Vector(0, 0, 41.01152), App.Rotation())
sketch18.addGeometry(Part.LineSegment(Vector(-22.1, 65.7, 0), Vector(-2.4, 75.5, 0)), False)
sketch18.addGeometry(Part.ArcOfCircle(Part.Circle(Vector(-4.2, 79, 0), Vector(0, 0, 1), 4), math.radians(-64), math.radians(116)), False)
sketch18.addGeometry(Part.LineSegment(Vector(-6, 82.6, 0), Vector(-25.7, 72.8, 0)), False)
sketch18.addGeometry(Part.ArcOfCircle(Part.Circle(Vector(-23.9, 69.3, 0), Vector(0, 0, 1), 4), math.radians(116), math.radians(296)), False)
sketch18.addGeometry(Part.LineSegment(Vector(-22.1, 35.7, 0), Vector(-2.4, 45.5, 0)), False)
sketch18.addGeometry(Part.ArcOfCircle(Part.Circle(Vector(-4.2, 49, 0), Vector(0, 0, 1), 4), math.radians(-64), math.radians(116)), False)
sketch18.addGeometry(Part.LineSegment(Vector(-6, 52.6, 0), Vector(-25.7, 42.8, 0)), False)
sketch18.addGeometry(Part.ArcOfCircle(Part.Circle(Vector(-23.9, 39.3, 0), Vector(0, 0, 1), 4), math.radians(116), math.radians(296)), False)
sketch18.addGeometry(Part.LineSegment(Vector(-22.1, 5.7, 0), Vector(-2.4, 15.5, 0)), False)
sketch18.addGeometry(Part.ArcOfCircle(Part.Circle(Vector(-4.2, 19, 0), Vector(0, 0, 1), 4), math.radians(-64), math.radians(116)), False)
sketch18.addGeometry(Part.LineSegment(Vector(-6, 22.6, 0), Vector(-25.7, 12.8, 0)), False)
sketch18.addGeometry(Part.ArcOfCircle(Part.Circle(Vector(-23.9, 9.3, 0), Vector(0, 0, 1), 4), math.radians(116), math.radians(296)), False)
sketch18.addConstraint(Sketcher.Constraint("Tangent", 0, 2, 1, 1))
sketch18.addConstraint(Sketcher.Constraint("Tangent", 1, 2, 2, 1))
sketch18.addConstraint(Sketcher.Constraint("Tangent", 2, 2, 3, 1))
sketch18.addConstraint(Sketcher.Constraint("Tangent", 3, 2, 0, 1))
sketch18.addConstraint(Sketcher.Constraint("Tangent", 4, 2, 5, 1))
sketch18.addConstraint(Sketcher.Constraint("Tangent", 5, 2, 6, 1))
sketch18.addConstraint(Sketcher.Constraint("Tangent", 6, 2, 7, 1))
sketch18.addConstraint(Sketcher.Constraint("Tangent", 7, 2, 4, 1))
sketch18.addConstraint(Sketcher.Constraint("Tangent", 8, 2, 9, 1))
sketch18.addConstraint(Sketcher.Constraint("Tangent", 9, 2, 10, 1))
sketch18.addConstraint(Sketcher.Constraint("Tangent", 10, 2, 11, 1))
sketch18.addConstraint(Sketcher.Constraint("Tangent", 11, 2, 8, 1))
sketch18.addConstraint(Sketcher.Constraint("Equal", 1, 3))
sketch18.addConstraint(Sketcher.Constraint("Equal", 3, 5))
sketch18.addConstraint(Sketcher.Constraint("Equal", 5, 7))
sketch18.addConstraint(Sketcher.Constraint("Equal", 7, 9))
sketch18.addConstraint(Sketcher.Constraint("Equal", 9, 11))
sketch18.addConstraint(Sketcher.Constraint("Parallel", 2, 4))
sketch18.addConstraint(Sketcher.Constraint("Parallel", 6, 8))
sketch18.addConstraint(Sketcher.Constraint("Vertical", 1, 3, 5, 3))
sketch18.addConstraint(Sketcher.Constraint("Vertical", 3, 3, 7, 3))
sketch18.addConstraint(Sketcher.Constraint("Vertical", 5, 3, 9, 3))
sketch18.addConstraint(Sketcher.Constraint("Vertical", 7, 3, 11, 3))
sketch18.addConstraint(Sketcher.Constraint("Radius", 1, 4.0))
sketch18.addConstraint(Sketcher.Constraint("Distance", 0, 22.0))
sketch18.addConstraint(Sketcher.Constraint("DistanceY", 5, 3, 1, 3, 30.0))
sketch18.addConstraint(Sketcher.Constraint("DistanceY", 9, 3, 5, 3, 30.0))
sketch18.addConstraint(Sketcher.Constraint("DistanceX", 3, 3, 1, 3, 19.7))
sketch18.addConstraint(Sketcher.Constraint("DistanceY", -1, 1, 1, 2, 82.628501))
sketch18.addConstraint(Sketcher.Constraint("DistanceX", 1, 3, -1, 1, 4.222141))
pocket11 = doc.addObject("PartDesign::Pocket", "Pocket010")
body.addObject(pocket11)
pocket11.Profile = sketch18
pocket11.Length = 80

# Sketch on YZ plane
sketch19 = doc.addObject("Sketcher::SketchObject", "Sketch018")
body.addObject(sketch19)
sketch19.AttachmentSupport = (doc.YZ_Plane, [""])
sketch19.MapMode = "FlatFace"
sketch19.AttachmentOffset = App.Placement(Vector(0, 0, -32.922141), App.Rotation())
sketch19.addGeometry(Part.LineSegment(Vector(26, -2, 0), Vector(39, 28, 0)), False)
sketch19.addGeometry(Part.ArcOfCircle(Part.Circle(Vector(45, 26, 0), Vector(0, 0, 1), 6), math.radians(-23), math.radians(157)), False)
sketch19.addGeometry(Part.LineSegment(Vector(51, 24, 0), Vector(38, -7, 0)), False)
sketch19.addGeometry(Part.ArcOfCircle(Part.Circle(Vector(32, -5, 0), Vector(0, 0, 1), 6), math.radians(157), math.radians(337)), False)
sketch19.addGeometry(Part.LineSegment(Vector(1, -2, 0), Vector(14, 28, 0)), False)
sketch19.addGeometry(Part.ArcOfCircle(Part.Circle(Vector(20, 26, 0), Vector(0, 0, 1), 6), math.radians(-23), math.radians(157)), False)
sketch19.addGeometry(Part.LineSegment(Vector(26, 24, 0), Vector(13, -7, 0)), False)
sketch19.addGeometry(Part.ArcOfCircle(Part.Circle(Vector(7, -5, 0), Vector(0, 0, 1), 6), math.radians(157), math.radians(337)), False)
sketch19.addConstraint(Sketcher.Constraint("Tangent", 0, 2, 1, 2))
sketch19.addConstraint(Sketcher.Constraint("Tangent", 1, 1, 2, 1))
sketch19.addConstraint(Sketcher.Constraint("Tangent", 2, 2, 3, 2))
sketch19.addConstraint(Sketcher.Constraint("Tangent", 3, 1, 0, 1))
sketch19.addConstraint(Sketcher.Constraint("Tangent", 4, 2, 5, 2))
sketch19.addConstraint(Sketcher.Constraint("Tangent", 5, 1, 6, 1))
sketch19.addConstraint(Sketcher.Constraint("Tangent", 6, 2, 7, 2))
sketch19.addConstraint(Sketcher.Constraint("Tangent", 7, 1, 4, 1))
sketch19.addConstraint(Sketcher.Constraint("Equal", 1, 3))
sketch19.addConstraint(Sketcher.Constraint("Equal", 3, 5))
sketch19.addConstraint(Sketcher.Constraint("Equal", 5, 7))
sketch19.addConstraint(Sketcher.Constraint("Parallel", 2, 4))
sketch19.addConstraint(Sketcher.Constraint("Horizontal", 1, 3, 5, 3))
sketch19.addConstraint(Sketcher.Constraint("Horizontal", 3, 3, 7, 3))
sketch19.addConstraint(Sketcher.Constraint("Radius", 1, 6.0))
sketch19.addConstraint(Sketcher.Constraint("DistanceX", -1, 1, 1, 3, 45.0))
sketch19.addConstraint(Sketcher.Constraint("DistanceX", -1, 1, 3, 3, 32.0))
sketch19.addConstraint(Sketcher.Constraint("DistanceX", -1, 1, 5, 3, 20.0))
sketch19.addConstraint(Sketcher.Constraint("DistanceY", 3, 3, 1, 3, 30.6))
sketch19.addConstraint(Sketcher.Constraint("DistanceY", -1, 1, 0, 2, 28.3576))
pocket12 = doc.addObject("PartDesign::Pocket", "Pocket011")
body.addObject(pocket12)
pocket12.Profile = sketch19
pocket12.Length = 20
pocket12.Reversed = True
body3 = doc.addObject("PartDesign::Body", "Body002")
doc.recompute()

mirroring2 = doc.addObject("Part::Mirroring", "Mirroring001")
mirroring2.Source = body
mirroring2.Base = Vector(51.677859, 0, 0)
mirroring2.Normal = Vector(1, 0, 0)
body3.BaseFeature = mirroring2
doc.recompute()
body2.Visibility = False
mirroring.Visibility = False
mirroring2.Visibility = False

doc.recompute()
